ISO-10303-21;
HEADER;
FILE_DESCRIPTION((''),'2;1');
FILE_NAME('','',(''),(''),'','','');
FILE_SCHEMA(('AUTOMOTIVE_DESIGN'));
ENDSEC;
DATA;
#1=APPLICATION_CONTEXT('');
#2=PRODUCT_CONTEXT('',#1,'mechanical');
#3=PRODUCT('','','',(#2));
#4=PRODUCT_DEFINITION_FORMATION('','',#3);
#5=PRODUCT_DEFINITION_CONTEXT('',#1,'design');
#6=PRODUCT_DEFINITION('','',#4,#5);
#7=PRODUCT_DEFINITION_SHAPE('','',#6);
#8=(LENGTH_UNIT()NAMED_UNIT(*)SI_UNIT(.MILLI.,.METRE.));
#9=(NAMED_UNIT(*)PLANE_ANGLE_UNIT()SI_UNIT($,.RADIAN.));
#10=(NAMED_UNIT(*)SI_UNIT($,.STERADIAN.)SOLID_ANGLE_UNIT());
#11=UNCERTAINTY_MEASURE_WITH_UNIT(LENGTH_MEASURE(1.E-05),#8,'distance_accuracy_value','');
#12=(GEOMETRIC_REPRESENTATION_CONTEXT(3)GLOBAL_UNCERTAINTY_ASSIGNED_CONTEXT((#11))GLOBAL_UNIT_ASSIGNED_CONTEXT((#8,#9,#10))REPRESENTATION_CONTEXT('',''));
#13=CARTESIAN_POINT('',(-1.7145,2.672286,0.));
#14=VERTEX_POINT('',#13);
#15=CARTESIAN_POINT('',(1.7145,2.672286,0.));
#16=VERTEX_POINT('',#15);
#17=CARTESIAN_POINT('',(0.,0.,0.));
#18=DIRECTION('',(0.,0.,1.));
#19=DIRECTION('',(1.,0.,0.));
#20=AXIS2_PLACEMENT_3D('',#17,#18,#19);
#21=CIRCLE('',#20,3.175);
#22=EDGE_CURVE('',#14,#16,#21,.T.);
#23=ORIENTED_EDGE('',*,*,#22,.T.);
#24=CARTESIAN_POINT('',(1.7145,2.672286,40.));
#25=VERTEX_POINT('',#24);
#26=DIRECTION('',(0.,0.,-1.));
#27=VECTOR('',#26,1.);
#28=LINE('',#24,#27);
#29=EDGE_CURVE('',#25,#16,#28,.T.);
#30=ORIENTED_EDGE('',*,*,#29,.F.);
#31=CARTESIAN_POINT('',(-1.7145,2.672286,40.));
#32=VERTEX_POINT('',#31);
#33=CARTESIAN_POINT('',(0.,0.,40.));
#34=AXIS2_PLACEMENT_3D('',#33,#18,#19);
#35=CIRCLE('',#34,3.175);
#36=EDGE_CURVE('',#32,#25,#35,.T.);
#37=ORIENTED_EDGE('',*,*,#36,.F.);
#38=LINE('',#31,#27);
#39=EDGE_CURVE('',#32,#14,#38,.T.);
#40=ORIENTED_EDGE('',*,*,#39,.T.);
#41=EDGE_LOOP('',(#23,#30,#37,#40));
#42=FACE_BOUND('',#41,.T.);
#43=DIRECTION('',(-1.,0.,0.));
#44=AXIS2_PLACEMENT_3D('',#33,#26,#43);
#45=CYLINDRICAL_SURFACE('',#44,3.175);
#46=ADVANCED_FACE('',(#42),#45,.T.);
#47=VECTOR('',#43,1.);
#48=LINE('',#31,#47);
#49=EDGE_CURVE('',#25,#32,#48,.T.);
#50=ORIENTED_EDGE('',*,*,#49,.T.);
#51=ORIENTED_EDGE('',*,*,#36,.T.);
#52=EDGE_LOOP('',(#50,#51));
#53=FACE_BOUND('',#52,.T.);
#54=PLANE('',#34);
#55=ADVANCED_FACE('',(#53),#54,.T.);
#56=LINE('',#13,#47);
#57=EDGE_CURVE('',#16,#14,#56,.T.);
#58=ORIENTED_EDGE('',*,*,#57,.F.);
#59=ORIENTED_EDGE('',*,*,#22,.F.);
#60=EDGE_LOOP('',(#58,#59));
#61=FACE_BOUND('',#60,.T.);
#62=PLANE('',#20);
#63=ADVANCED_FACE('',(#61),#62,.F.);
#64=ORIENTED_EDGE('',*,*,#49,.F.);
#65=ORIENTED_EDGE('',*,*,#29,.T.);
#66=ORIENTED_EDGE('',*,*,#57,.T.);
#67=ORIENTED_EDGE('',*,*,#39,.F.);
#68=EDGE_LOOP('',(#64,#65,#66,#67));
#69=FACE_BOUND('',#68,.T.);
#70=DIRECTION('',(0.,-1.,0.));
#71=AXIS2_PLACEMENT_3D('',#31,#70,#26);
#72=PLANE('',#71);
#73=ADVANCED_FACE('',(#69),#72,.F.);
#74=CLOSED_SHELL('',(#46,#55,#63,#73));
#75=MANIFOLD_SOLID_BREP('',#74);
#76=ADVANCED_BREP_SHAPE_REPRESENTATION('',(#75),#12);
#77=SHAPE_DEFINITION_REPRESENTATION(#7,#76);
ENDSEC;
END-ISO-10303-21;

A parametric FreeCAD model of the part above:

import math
import FreeCAD as App
import Part
import Sketcher

V = App.Vector
Q = App.Units.Quantity

doc = App.newDocument("Part")
params = doc.addObject("Spreadsheet::Sheet", "Params")
for row, (alias, value) in enumerate([
    ("sketch1_radius", "0.125 in"),
    ("sketch1_width", "0.135 in"),
    ("pad1_length", "40 mm"),
], start=1):
    params.set(f"A{row}", alias)
    params.set(f"B{row}", "=" + value)
    params.setAlias(f"B{row}", alias)

body = doc.addObject("PartDesign::Body", "Body")

# Sketch on XY plane
sketch1 = body.newObject("Sketcher::SketchObject", "Sketch")
sketch1.AttachmentSupport = (doc.getObject("XY_Plane"), [""])
sketch1.MapMode = "FlatFace"
sketch1.addGeometry(Part.LineSegment(V(1.7145, 2.672286, 0), V(-1.7145, 2.672286, 0)), False)
sketch1.addGeometry(Part.ArcOfCircle(Part.Circle(V(0, 0, 0), V(0, 0, 1), 3.175), math.radians(122.683639), math.radians(417.316361)), False)
sketch1.addConstraint(Sketcher.Constraint("Coincident", 0, 1, 1, 2))
sketch1.addConstraint(Sketcher.Constraint("Coincident", 1, 1, 0, 2))
sketch1.addConstraint(Sketcher.Constraint("Horizontal", 0))
sketch1.addConstraint(Sketcher.Constraint("Coincident", 1, 3, -1, 1))
sketch1.addConstraint(Sketcher.Constraint("Radius", 1, Q("0.125 in")))
sketch1.addConstraint(Sketcher.Constraint("DistanceX", 0, 2, 0, 1, Q("0.135 in")))
sketch1.setExpression("Constraints[4]", "Params.sketch1_radius")
sketch1.setExpression("Constraints[5]", "Params.sketch1_width")
pad1 = body.newObject("PartDesign::Pad", "Pad")
pad1.Profile = sketch1
pad1.setExpression("Length", "Params.pad1_length")

doc.recompute()
